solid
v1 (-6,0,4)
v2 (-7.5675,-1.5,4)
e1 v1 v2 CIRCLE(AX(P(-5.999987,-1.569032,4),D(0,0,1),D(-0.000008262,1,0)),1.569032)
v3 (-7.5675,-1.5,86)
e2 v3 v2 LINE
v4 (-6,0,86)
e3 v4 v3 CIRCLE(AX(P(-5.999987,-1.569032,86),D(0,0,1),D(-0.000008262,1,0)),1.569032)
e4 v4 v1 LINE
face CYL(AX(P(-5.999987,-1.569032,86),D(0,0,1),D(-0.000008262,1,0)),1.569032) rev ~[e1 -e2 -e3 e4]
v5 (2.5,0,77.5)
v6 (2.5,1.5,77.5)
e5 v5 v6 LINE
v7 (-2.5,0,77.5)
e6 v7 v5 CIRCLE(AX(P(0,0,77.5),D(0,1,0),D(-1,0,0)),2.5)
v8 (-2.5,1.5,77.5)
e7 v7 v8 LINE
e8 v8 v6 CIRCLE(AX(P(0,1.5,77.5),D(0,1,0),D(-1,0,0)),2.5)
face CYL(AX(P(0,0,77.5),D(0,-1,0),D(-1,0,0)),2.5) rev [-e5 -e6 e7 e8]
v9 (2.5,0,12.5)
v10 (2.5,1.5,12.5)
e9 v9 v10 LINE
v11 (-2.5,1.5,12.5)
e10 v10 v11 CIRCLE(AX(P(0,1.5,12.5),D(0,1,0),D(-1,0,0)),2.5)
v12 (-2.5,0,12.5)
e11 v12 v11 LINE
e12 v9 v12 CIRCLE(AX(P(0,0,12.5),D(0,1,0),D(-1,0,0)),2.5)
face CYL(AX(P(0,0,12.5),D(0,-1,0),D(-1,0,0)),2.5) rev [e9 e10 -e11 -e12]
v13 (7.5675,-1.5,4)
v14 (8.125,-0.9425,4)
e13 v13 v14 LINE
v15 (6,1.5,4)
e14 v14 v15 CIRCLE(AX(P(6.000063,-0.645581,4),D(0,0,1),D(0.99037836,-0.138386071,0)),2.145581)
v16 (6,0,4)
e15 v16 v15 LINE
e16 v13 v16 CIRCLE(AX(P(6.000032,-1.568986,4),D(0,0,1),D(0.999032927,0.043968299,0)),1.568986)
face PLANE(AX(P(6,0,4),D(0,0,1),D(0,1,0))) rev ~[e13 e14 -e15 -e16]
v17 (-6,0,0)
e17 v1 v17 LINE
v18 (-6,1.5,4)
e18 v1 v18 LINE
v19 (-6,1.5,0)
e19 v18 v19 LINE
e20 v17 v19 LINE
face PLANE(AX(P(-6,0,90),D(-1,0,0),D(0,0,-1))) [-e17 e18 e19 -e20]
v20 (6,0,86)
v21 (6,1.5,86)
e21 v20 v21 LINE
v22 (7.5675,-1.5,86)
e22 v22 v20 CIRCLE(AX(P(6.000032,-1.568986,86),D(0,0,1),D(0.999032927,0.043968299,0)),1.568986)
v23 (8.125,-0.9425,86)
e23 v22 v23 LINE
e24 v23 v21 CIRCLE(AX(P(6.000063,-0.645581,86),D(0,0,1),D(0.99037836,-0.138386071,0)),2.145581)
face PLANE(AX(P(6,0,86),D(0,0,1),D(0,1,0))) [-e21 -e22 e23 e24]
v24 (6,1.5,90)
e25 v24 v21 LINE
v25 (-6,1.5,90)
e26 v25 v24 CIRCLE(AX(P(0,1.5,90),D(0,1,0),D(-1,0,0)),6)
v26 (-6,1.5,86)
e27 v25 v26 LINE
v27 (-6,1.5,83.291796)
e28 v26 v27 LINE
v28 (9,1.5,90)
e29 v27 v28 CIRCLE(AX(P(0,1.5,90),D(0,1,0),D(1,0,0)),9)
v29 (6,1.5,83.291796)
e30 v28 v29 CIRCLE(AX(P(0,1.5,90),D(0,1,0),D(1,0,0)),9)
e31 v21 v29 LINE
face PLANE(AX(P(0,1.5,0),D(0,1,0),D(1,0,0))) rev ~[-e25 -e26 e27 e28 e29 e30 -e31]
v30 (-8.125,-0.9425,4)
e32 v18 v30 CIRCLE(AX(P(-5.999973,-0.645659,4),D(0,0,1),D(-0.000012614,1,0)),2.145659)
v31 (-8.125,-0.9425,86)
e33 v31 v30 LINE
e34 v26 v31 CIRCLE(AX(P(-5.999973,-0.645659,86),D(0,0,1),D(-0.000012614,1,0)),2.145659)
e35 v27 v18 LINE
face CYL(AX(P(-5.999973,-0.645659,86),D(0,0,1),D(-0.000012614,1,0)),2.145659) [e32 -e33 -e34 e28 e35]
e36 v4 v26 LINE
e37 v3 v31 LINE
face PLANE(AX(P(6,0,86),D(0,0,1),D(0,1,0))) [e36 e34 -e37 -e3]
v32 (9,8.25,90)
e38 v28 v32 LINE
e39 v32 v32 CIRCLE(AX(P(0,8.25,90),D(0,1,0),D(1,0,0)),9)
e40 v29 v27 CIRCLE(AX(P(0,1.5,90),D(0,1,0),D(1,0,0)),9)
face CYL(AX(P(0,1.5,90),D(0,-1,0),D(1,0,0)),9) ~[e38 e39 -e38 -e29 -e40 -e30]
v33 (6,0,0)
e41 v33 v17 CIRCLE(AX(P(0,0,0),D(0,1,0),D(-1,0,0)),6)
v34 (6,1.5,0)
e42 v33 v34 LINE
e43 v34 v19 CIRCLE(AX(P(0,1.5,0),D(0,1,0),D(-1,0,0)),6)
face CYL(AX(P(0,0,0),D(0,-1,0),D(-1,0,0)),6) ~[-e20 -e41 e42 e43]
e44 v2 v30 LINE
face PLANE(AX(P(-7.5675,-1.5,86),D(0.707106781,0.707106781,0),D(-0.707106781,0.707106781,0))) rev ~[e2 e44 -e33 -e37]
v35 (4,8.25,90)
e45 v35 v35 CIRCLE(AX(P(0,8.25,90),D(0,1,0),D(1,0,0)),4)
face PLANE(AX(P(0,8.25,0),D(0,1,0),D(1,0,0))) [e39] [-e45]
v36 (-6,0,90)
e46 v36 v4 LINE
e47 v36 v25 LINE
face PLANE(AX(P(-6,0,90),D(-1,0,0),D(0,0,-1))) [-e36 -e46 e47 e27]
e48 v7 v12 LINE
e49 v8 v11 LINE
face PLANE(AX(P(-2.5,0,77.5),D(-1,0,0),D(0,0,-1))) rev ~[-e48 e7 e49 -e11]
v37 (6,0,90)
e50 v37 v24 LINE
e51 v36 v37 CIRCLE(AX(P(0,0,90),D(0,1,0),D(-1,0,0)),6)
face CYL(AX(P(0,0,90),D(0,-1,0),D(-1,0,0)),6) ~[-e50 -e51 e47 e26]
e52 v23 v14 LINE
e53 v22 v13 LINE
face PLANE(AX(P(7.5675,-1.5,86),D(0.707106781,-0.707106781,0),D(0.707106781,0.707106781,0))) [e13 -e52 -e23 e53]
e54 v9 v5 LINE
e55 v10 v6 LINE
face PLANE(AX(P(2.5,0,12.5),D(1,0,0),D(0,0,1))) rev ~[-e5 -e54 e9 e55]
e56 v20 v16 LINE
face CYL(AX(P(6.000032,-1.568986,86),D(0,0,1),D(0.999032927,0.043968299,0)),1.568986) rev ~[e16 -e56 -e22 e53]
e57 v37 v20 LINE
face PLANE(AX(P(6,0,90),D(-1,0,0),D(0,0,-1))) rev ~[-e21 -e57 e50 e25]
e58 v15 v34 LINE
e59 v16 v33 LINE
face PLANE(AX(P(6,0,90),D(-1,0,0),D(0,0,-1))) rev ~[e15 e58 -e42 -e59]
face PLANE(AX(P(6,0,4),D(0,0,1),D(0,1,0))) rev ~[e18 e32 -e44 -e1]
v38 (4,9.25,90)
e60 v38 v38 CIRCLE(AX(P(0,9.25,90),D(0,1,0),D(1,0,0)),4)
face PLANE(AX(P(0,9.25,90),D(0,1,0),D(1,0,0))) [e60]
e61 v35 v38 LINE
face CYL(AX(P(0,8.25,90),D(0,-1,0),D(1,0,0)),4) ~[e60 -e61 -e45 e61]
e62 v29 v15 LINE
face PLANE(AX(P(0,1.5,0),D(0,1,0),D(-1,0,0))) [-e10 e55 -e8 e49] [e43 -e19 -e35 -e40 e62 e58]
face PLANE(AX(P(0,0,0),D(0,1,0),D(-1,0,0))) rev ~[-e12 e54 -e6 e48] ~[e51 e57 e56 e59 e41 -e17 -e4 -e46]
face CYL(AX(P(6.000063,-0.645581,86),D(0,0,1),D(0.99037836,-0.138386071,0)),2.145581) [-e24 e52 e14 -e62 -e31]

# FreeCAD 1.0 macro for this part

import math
import FreeCAD as App
import Part
import Sketcher
Q = App.Units.Quantity

doc = App.newDocument("Part")
body = doc.addObject("PartDesign::Body", "Body")

# Sketch on XZ plane
sketch1 = doc.addObject("Sketcher::SketchObject", "Sketch")
body.addObject(sketch1)
sketch1.AttachmentSupport = (doc.XZ_Plane, [""])
sketch1.MapMode = "FlatFace"
sketch1.addGeometry([
    Part.ArcOfCircle(Part.Circle(App.Vector(0, 0, 0), App.Vector(0, 0, 1), 6), math.radians(180), math.radians(360)),  # 0
    Part.LineSegment(App.Vector(-6, 0, 0), App.Vector(-6, 90, 0)),  # 1
    Part.ArcOfCircle(Part.Circle(App.Vector(0, 90, 0), App.Vector(0, 0, 1), 6), math.radians(0), math.radians(180)),  # 2
    Part.LineSegment(App.Vector(6, 90, 0), App.Vector(6, 0, 0)),  # 3
    Part.LineSegment(App.Vector(-2.5, 77.5, 0), App.Vector(-2.5, 12.5, 0)),  # 4
    Part.ArcOfCircle(Part.Circle(App.Vector(0, 12.5, 0), App.Vector(0, 0, 1), 2.5), math.radians(180), math.radians(360)),  # 5
    Part.LineSegment(App.Vector(2.5, 12.5, 0), App.Vector(2.5, 77.5, 0)),  # 6
    Part.ArcOfCircle(Part.Circle(App.Vector(0, 77.5, 0), App.Vector(0, 0, 1), 2.5), math.radians(0), math.radians(180)),  # 7
], False)
sketch1.addConstraint([
    Sketcher.Constraint("Tangent", 0, 1, 1, 1),
    Sketcher.Constraint("Tangent", 1, 2, 2, 2),
    Sketcher.Constraint("Tangent", 2, 1, 3, 1),
    Sketcher.Constraint("Tangent", 3, 2, 0, 2),
    Sketcher.Constraint("Tangent", 4, 2, 5, 1),
    Sketcher.Constraint("Tangent", 5, 2, 6, 1),
    Sketcher.Constraint("Tangent", 6, 2, 7, 1),
    Sketcher.Constraint("Tangent", 7, 2, 4, 1),
    Sketcher.Constraint("Vertical", 1),
    Sketcher.Constraint("Vertical", 3),
    Sketcher.Constraint("Vertical", 4),
    Sketcher.Constraint("Vertical", 6),
    Sketcher.Constraint("Coincident", 0, 3, -1, 1),
    Sketcher.Constraint("PointOnObject", 5, 3, -2),
    Sketcher.Constraint("Radius", 0, Q("6 mm")),
    Sketcher.Constraint("Radius", 5, Q("2.5 mm")),
    Sketcher.Constraint("DistanceY", 1, 1, 1, 2, Q("90 mm")),
    Sketcher.Constraint("DistanceY", 4, 2, 4, 1, Q("65 mm")),
    Sketcher.Constraint("DistanceY", -1, 1, 5, 3, Q("12.5 mm")),
])
pad1 = doc.addObject("PartDesign::Pad", "Pad")
body.addObject(pad1)
pad1.Profile = sketch1
pad1.Length = 1.5
pad1.Reversed = True

# Sketch on XY plane
sketch2 = doc.addObject("Sketcher::SketchObject", "Sketch001")
body.addObject(sketch2)
sketch2.AttachmentSupport = (doc.XY_Plane, [""])
sketch2.MapMode = "FlatFace"
sketch2.AttachmentOffset = App.Placement(App.Vector(0, 0, 86), App.Rotation())
sketch2.addGeometry([
    Part.ArcOfCircle(Part.Circle(App.Vector(6, -0.6, 0), App.Vector(0, 0, 1), 2.1), math.radians(-8), math.radians(90)),  # 0
    Part.LineSegment(App.Vector(6, 1.5, 0), App.Vector(6, 0, 0)),  # 1
    Part.ArcOfCircle(Part.Circle(App.Vector(6, -1.6, 0), App.Vector(0, 0, 1), 1.6), math.radians(3), math.radians(90)),  # 2
    Part.LineSegment(App.Vector(7.6, -1.5, 0), App.Vector(8.1, -0.9, 0)),  # 3
    Part.LineSegment(App.Vector(-6, 0, 0), App.Vector(-6, 1.5, 0)),  # 4
    Part.ArcOfCircle(Part.Circle(App.Vector(-6, -0.6, 0), App.Vector(0, 0, 1), 2.1), math.radians(90), math.radians(188)),  # 5
    Part.LineSegment(App.Vector(-8.1, -0.9, 0), App.Vector(-7.6, -1.5, 0)),  # 6
    Part.ArcOfCircle(Part.Circle(App.Vector(-6, -1.6, 0), App.Vector(0, 0, 1), 1.6), math.radians(90), math.radians(177)),  # 7
], False)
sketch2.addConstraint([
    Sketcher.Constraint("Coincident", 0, 2, 1, 1),
    Sketcher.Constraint("Coincident", 1, 2, 2, 2),
    Sketcher.Constraint("Coincident", 2, 1, 3, 1),
    Sketcher.Constraint("Coincident", 3, 2, 0, 1),
    Sketcher.Constraint("Coincident", 4, 2, 5, 1),
    Sketcher.Constraint("Coincident", 5, 2, 6, 1),
    Sketcher.Constraint("Coincident", 6, 2, 7, 2),
    Sketcher.Constraint("Coincident", 7, 1, 4, 1),
    Sketcher.Constraint("Vertical", 1),
    Sketcher.Constraint("Vertical", 4),
    Sketcher.Constraint("Equal", 0, 5),
    Sketcher.Constraint("Equal", 2, 7),
    Sketcher.Constraint("Symmetric", 1, 2, 7, 1, -1, 1),
    Sketcher.Constraint("Symmetric", 0, 3, 5, 3, -2),
    Sketcher.Constraint("Symmetric", 2, 3, 7, 3, -2),
    Sketcher.Constraint("Perpendicular", 3, 6),
    Sketcher.Constraint("Horizontal", 3, 2, 5, 2),
    Sketcher.Constraint("Horizontal", 2, 1, 6, 2),
    Sketcher.Constraint("Vertical", 0, 3, 2, 3),
    Sketcher.Constraint("Vertical", 2, 3, 0, 2),
    Sketcher.Constraint("DistanceY", 1, 2, 1, 1, Q("1.5 mm")),
    Sketcher.Constraint("DistanceY", 2, 1, 0, 2, Q("3 mm")),
    Sketcher.Constraint("DistanceX", -1, 1, 0, 3, Q("6 mm")),
    Sketcher.Constraint("Radius", 2, Q("1.569 mm")),
    Sketcher.Constraint("DistanceX", 0, 3, 3, 2, Q("2.125 mm")),
])
pad2 = doc.addObject("PartDesign::Pad", "Pad001")
body.addObject(pad2)
pad2.Profile = sketch2
pad2.Length = 82
pad2.Reversed = True

# Sketch on XZ plane
sketch3 = doc.addObject("Sketcher::SketchObject", "Sketch002")
body.addObject(sketch3)
sketch3.AttachmentSupport = (doc.XZ_Plane, [""])
sketch3.MapMode = "FlatFace"
sketch3.AttachmentOffset = App.Placement(App.Vector(0, 0, -1.5), App.Rotation())
sketch3.addGeometry(Part.Circle(App.Vector(0, 90, 0), App.Vector(0, 0, 1), 9), False)
sketch3.addConstraint([
    Sketcher.Constraint("PointOnObject", 0, 3, -2),
    Sketcher.Constraint("Diameter", 0, Q("18 mm")),
    Sketcher.Constraint("DistanceY", -1, 1, 0, 3, Q("90 mm")),
])
pad3 = doc.addObject("PartDesign::Pad", "Pad002")
body.addObject(pad3)
pad3.Profile = sketch3
pad3.Length = 6.75
pad3.Reversed = True

# Sketch on XZ plane
sketch4 = doc.addObject("Sketcher::SketchObject", "Sketch003")
body.addObject(sketch4)
sketch4.AttachmentSupport = (doc.XZ_Plane, [""])
sketch4.MapMode = "FlatFace"
sketch4.AttachmentOffset = App.Placement(App.Vector(0, 0, -8.25), App.Rotation())
sketch4.addGeometry(Part.Circle(App.Vector(0, 90, 0), App.Vector(0, 0, 1), 4), False)
sketch4.addConstraint([
    Sketcher.Constraint("PointOnObject", 0, 3, -2),
    Sketcher.Constraint("Diameter", 0, Q("8 mm")),
    Sketcher.Constraint("DistanceY", -1, 1, 0, 3, Q("90 mm")),
])
pad4 = doc.addObject("PartDesign::Pad", "Pad003")
body.addObject(pad4)
pad4.Profile = sketch4
pad4.Length = 1
pad4.Reversed = True

doc.recompute()
